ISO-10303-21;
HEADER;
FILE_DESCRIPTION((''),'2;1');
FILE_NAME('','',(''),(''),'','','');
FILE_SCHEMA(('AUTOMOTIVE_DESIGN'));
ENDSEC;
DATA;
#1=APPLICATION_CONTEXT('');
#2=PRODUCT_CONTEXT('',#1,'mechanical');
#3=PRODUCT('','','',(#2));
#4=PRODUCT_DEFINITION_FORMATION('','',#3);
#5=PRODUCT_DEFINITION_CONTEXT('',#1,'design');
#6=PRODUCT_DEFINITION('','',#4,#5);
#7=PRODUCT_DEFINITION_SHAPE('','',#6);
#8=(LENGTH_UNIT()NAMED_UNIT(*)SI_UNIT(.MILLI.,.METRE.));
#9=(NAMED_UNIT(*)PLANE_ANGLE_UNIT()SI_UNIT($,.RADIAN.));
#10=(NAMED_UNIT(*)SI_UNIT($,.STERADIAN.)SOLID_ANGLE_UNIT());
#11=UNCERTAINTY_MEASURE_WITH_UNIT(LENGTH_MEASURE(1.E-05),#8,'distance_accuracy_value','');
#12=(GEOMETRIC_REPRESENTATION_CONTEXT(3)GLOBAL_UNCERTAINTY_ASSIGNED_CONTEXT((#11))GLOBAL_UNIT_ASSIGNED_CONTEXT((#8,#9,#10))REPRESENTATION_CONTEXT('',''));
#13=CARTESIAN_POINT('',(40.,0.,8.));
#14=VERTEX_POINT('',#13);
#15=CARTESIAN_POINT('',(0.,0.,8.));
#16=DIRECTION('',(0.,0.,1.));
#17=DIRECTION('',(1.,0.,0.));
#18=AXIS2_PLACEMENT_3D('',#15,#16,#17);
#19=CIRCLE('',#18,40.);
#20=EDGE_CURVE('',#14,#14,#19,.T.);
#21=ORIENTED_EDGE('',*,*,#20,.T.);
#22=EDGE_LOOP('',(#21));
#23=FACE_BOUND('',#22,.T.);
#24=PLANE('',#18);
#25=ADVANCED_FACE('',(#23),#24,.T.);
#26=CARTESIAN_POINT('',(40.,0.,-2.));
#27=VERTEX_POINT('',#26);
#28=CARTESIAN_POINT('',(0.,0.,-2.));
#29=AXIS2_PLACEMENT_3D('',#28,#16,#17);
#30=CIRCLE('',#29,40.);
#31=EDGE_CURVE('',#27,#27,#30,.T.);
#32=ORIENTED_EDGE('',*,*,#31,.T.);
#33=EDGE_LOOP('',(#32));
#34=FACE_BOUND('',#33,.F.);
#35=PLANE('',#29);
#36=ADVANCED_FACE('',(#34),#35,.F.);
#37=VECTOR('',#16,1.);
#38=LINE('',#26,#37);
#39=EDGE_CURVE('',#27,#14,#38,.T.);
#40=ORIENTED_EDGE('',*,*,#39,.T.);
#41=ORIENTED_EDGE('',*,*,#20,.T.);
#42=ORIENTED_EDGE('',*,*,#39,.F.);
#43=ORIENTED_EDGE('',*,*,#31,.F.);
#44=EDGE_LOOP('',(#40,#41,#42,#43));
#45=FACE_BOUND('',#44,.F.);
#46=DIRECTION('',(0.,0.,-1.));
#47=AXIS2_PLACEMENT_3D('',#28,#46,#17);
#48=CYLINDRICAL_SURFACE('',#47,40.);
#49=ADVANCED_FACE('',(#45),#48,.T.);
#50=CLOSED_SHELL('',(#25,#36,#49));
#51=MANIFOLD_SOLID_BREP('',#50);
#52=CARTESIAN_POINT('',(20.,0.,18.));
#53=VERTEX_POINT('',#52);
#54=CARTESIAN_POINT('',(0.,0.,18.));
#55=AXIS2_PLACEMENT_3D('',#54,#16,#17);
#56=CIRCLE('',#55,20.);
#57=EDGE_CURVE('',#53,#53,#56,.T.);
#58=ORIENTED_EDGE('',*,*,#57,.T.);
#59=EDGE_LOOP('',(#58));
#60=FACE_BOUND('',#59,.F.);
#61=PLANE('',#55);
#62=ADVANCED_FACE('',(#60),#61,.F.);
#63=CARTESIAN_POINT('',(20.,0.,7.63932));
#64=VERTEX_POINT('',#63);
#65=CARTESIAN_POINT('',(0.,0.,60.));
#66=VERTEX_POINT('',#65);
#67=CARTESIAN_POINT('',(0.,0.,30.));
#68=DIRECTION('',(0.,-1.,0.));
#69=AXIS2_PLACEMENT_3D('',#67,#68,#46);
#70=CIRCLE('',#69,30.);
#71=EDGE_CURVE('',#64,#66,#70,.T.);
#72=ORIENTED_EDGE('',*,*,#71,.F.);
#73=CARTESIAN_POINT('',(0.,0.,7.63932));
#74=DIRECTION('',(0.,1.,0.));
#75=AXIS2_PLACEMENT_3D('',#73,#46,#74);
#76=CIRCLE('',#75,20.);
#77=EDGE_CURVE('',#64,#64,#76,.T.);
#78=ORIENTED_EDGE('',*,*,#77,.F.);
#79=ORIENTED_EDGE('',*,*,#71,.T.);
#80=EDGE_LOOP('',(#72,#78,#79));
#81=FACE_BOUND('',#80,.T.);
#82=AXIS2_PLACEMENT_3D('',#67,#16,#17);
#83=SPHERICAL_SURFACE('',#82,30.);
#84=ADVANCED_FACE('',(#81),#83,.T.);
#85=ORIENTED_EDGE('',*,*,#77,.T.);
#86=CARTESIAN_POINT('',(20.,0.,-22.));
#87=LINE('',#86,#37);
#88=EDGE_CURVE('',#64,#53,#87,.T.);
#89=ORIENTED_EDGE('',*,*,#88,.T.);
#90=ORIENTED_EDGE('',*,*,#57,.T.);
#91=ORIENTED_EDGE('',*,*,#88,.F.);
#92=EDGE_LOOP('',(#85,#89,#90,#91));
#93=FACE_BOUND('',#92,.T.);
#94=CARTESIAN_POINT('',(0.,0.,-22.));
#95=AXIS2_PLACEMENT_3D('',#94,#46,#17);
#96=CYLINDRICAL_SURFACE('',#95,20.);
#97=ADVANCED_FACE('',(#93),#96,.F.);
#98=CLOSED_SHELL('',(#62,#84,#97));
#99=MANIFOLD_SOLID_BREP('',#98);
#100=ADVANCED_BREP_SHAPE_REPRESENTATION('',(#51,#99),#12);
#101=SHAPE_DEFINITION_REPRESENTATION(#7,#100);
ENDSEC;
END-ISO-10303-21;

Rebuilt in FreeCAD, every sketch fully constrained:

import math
import FreeCAD as App
import Part
import Sketcher

doc = App.newDocument("Part")
body = doc.addObject("PartDesign::Body", "Body")

# Sketch on XY plane
sketch1 = body.newObject("Sketcher::SketchObject", "Sketch")
sketch1.AttachmentSupport = (doc.getObject("XY_Plane"), [""])
sketch1.MapMode = "FlatFace"
sketch1.AttachmentOffset = App.Placement(App.Vector(0, 0, -22), App.Rotation())
sketch1.addGeometry(Part.Circle(App.Vector(0, 0, 0), App.Vector(0, 0, 1), 20), False)
sketch1.addConstraint([
    Sketcher.Constraint("Coincident", 0, 3, -1, 1),
    Sketcher.Constraint("Diameter", 0, 40.0),
])
pad1 = body.newObject("PartDesign::Pad", "Pad")
pad1.Profile = sketch1
pad1.Length = 40
body2 = doc.addObject("PartDesign::Body", "Body001")

# Sketch on XZ plane
sketch2 = body2.newObject("Sketcher::SketchObject", "Sketch001")
sketch2.AttachmentSupport = (doc.getObject("XZ_Plane001"), [""])
sketch2.MapMode = "FlatFace"
sketch2.addGeometry([
    Part.ArcOfCircle(Part.Circle(App.Vector(0, 30, 0), App.Vector(0, 0, 1), 30), math.radians(-90), math.radians(90)),
    Part.LineSegment(App.Vector(0, 60, 0), App.Vector(0, 0, 0)),
], False)
sketch2.addConstraint([
    Sketcher.Constraint("Coincident", 0, 1, 1, 2),
    Sketcher.Constraint("Coincident", 1, 1, 0, 2),
    Sketcher.Constraint("Vertical", 1),
    Sketcher.Constraint("Coincident", 0, 1, -1, 1),
    Sketcher.Constraint("PointOnObject", 0, 3, -2),
    Sketcher.Constraint("Radius", 0, 30.0),
])
revolution = body2.newObject("PartDesign::Revolution", "Revolution")
revolution.Profile = sketch2
revolution.ReferenceAxis = (sketch2, ["V_Axis"])
revolution.Angle = 360
doc.recompute()

boolean = body2.newObject("PartDesign::Boolean", "Boolean")
boolean.Type = "Cut"
boolean.addObjects([body])
body3 = doc.addObject("PartDesign::Body", "Body002")

# Sketch on XY plane
sketch3 = body3.newObject("Sketcher::SketchObject", "Sketch002")
sketch3.AttachmentSupport = (doc.getObject("XY_Plane002"), [""])
sketch3.MapMode = "FlatFace"
sketch3.AttachmentOffset = App.Placement(App.Vector(0, 0, -2), App.Rotation())
sketch3.addGeometry(Part.Circle(App.Vector(0, 0, 0), App.Vector(0, 0, 1), 40), False)
sketch3.addConstraint([
    Sketcher.Constraint("Coincident", 0, 3, -1, 1),
    Sketcher.Constraint("Diameter", 0, 80.0),
])
pad2 = body3.newObject("PartDesign::Pad", "Pad001")
pad2.Profile = sketch3
pad2.Length = 10

doc.recompute()
